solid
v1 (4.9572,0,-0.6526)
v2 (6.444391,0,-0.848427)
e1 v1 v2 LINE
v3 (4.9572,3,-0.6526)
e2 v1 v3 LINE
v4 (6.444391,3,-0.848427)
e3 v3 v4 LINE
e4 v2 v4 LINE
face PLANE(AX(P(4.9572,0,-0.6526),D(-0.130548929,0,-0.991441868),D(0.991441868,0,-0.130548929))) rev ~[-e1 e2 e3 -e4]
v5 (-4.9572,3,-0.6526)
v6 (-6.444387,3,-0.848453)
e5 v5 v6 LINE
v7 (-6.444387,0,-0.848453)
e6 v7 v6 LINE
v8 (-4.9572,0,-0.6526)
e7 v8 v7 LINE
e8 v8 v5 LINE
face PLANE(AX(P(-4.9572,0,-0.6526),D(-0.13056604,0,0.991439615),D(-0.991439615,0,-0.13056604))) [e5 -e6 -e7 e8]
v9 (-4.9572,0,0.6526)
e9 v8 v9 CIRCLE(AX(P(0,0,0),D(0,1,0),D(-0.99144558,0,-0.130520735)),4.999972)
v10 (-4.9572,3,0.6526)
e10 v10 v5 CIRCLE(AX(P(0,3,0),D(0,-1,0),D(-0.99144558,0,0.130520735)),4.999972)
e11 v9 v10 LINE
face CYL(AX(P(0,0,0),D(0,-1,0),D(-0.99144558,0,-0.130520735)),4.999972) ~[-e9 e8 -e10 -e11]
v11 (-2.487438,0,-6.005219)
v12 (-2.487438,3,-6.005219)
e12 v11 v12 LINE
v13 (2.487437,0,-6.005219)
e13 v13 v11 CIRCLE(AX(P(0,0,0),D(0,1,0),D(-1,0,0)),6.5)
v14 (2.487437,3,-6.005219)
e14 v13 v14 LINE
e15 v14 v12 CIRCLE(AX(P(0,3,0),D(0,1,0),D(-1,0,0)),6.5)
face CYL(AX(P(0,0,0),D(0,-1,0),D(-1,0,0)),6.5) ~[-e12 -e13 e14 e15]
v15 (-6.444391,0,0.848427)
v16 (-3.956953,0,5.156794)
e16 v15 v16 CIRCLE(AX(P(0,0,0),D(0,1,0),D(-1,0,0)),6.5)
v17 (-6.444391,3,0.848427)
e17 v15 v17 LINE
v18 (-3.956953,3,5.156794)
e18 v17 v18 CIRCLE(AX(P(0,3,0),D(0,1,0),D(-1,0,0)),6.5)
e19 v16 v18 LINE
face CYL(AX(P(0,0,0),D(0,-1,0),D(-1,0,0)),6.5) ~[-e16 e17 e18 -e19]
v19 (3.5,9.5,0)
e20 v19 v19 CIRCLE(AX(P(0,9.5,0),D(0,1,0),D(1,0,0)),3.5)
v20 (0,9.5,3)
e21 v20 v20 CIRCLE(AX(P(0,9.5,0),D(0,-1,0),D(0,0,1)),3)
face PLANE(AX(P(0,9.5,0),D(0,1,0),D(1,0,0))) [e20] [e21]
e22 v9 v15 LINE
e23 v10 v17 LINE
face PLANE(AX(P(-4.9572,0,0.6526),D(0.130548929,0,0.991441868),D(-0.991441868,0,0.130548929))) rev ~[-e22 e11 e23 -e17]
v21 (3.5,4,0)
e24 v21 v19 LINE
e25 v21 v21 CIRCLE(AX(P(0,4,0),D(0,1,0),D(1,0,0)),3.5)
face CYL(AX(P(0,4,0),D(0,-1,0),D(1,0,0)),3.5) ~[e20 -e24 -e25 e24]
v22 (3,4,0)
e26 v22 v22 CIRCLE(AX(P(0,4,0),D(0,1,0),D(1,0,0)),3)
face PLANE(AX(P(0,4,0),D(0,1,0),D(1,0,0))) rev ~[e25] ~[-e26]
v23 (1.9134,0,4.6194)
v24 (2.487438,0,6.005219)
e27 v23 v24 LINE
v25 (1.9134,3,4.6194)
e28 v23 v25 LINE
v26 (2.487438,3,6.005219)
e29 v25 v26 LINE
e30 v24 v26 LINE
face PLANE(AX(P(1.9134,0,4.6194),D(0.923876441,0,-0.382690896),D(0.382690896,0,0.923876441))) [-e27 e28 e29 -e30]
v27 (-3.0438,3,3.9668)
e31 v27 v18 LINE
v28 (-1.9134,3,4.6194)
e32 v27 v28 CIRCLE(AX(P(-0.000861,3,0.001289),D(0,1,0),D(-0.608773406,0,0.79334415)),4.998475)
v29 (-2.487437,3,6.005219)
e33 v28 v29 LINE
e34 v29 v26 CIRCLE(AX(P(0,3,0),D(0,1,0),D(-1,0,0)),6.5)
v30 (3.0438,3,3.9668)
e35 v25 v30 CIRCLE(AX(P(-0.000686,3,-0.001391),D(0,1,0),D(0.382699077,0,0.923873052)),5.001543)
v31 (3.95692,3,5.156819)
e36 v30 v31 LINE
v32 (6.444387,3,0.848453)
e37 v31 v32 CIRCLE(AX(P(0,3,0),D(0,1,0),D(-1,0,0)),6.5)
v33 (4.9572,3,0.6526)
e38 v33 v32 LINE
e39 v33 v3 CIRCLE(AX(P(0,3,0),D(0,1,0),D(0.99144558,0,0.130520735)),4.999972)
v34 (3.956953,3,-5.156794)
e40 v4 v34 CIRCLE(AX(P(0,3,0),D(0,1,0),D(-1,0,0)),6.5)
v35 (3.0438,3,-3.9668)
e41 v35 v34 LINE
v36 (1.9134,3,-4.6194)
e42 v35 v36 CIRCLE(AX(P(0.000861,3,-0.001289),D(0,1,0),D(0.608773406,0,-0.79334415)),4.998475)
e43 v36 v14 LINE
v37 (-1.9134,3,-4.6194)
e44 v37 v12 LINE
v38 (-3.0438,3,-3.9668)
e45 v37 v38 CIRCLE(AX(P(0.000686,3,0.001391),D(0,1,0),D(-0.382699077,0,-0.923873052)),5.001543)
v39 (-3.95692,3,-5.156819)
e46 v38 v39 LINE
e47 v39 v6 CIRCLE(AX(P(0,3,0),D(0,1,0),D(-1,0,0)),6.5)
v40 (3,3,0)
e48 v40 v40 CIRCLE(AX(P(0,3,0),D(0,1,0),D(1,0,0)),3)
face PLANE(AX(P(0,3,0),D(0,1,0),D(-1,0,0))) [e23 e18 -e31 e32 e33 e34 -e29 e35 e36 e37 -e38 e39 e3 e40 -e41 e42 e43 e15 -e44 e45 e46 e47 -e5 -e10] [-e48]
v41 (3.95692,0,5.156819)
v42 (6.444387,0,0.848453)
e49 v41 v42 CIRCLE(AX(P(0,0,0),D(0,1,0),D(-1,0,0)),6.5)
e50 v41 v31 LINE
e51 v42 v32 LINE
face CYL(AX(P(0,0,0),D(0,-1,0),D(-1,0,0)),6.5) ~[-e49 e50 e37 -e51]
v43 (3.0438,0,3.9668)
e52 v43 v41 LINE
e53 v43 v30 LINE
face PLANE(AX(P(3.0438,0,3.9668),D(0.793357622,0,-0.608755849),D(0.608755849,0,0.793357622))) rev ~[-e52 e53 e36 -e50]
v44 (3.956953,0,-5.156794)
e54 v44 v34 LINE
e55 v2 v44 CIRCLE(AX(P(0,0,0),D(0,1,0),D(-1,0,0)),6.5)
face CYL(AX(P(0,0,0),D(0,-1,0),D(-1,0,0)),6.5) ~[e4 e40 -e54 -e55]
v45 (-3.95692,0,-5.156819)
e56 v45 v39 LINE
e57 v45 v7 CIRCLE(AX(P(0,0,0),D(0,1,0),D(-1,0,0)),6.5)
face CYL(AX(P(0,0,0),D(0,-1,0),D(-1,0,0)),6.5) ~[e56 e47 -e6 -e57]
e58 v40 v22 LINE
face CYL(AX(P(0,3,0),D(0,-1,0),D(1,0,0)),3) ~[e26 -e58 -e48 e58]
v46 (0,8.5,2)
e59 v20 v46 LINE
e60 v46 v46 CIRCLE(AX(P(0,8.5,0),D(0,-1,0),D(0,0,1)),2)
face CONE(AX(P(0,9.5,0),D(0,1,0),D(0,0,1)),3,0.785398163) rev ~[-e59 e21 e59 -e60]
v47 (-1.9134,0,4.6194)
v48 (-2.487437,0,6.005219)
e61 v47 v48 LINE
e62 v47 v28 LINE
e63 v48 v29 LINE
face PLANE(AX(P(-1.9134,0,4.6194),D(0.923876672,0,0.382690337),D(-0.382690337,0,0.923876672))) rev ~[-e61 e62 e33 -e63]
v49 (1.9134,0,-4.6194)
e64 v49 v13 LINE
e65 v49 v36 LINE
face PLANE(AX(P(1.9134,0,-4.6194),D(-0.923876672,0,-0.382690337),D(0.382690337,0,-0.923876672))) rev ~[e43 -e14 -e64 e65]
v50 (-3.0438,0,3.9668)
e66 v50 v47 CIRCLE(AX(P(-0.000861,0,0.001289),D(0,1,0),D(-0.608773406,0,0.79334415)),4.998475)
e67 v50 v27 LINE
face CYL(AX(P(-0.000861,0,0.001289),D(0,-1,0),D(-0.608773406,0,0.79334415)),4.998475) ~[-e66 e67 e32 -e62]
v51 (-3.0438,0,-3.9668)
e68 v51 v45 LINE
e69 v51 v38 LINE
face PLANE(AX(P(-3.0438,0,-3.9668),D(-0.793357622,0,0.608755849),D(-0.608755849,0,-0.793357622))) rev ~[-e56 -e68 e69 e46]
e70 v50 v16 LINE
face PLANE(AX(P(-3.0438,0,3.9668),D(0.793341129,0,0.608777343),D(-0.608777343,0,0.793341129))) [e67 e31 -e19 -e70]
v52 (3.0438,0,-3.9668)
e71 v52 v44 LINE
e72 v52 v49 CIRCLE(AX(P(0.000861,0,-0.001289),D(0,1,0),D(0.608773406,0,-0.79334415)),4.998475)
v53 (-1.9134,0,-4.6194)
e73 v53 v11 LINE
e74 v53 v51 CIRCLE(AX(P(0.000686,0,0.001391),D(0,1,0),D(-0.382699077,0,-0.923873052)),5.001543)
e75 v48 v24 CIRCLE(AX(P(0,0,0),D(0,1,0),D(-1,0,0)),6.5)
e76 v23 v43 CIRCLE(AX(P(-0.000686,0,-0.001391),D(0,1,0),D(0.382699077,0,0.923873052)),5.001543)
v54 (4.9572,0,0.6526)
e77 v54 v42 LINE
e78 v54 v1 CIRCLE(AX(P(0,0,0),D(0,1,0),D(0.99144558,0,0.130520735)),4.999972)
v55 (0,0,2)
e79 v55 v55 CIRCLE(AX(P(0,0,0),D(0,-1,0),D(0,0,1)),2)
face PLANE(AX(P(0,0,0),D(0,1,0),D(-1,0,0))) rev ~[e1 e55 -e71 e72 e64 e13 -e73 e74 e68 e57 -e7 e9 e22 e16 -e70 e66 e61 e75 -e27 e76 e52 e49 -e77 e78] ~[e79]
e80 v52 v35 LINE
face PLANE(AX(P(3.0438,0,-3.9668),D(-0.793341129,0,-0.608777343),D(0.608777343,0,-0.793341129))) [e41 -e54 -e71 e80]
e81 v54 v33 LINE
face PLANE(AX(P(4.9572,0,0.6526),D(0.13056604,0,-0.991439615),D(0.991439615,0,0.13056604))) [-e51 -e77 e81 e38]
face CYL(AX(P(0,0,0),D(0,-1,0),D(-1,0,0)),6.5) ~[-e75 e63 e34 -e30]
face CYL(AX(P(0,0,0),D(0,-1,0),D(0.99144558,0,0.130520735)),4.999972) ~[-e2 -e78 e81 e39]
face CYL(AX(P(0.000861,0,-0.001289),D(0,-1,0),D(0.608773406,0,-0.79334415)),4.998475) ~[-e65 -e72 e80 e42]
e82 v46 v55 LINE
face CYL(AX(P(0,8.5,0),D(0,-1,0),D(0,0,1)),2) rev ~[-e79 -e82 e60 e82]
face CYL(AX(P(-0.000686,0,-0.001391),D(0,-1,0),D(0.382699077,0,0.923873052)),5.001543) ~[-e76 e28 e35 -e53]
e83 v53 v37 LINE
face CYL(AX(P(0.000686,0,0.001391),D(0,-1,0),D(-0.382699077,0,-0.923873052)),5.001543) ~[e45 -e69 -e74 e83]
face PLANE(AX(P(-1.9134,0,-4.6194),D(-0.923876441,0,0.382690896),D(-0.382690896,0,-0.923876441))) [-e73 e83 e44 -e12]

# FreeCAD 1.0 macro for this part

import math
import FreeCAD as App
import Part
import Sketcher
Q = App.Units.Quantity

doc = App.newDocument("Part")
body = doc.addObject("PartDesign::Body", "Body")

sketch1 = body.newObject("Sketcher::SketchObject", "Sketch")
sketch1.AttachmentSupport = (doc.getObject("XZ_Plane"), [""])
sketch1.MapMode = "FlatFace"
sketch1.addGeometry(Part.LineSegment(App.Vector(-4.9572, 0.6526, 0), App.Vector(-6.444391, 0.848427, 0)), False)
sketch1.addGeometry(Part.ArcOfCircle(Part.Circle(App.Vector(0, 0, 0), App.Vector(0, 0, 1), 6.5), math.radians(127.500037), math.radians(172.499939)), False)
sketch1.addGeometry(Part.LineSegment(App.Vector(-3.956953, 5.156794, 0), App.Vector(-3.0438, 3.9668, 0)), False)
sketch1.addGeometry(Part.ArcOfCircle(Part.Circle(App.Vector(-0.000861, 0.001289, 0), App.Vector(0, 0, 1), 4.998475), math.radians(112.496341), math.radians(127.500865)), False)
sketch1.addGeometry(Part.LineSegment(App.Vector(-1.9134, 4.6194, 0), App.Vector(-2.487437, 6.005219, 0)), False)
sketch1.addGeometry(Part.ArcOfCircle(Part.Circle(App.Vector(0, 0, 0), App.Vector(0, 0, 1), 6.5), math.radians(67.500041), math.radians(112.499951)), False)
sketch1.addGeometry(Part.LineSegment(App.Vector(2.487438, 6.005219, 0), App.Vector(1.9134, 4.6194, 0)), False)
sketch1.addGeometry(Part.ArcOfCircle(Part.Circle(App.Vector(-0.000686, -0.001391, 0), App.Vector(0, 0, 1), 5.001543), math.radians(52.503764), math.radians(67.49903)), False)
sketch1.addGeometry(Part.LineSegment(App.Vector(3.0438, 3.9668, 0), App.Vector(3.95692, 5.156819, 0)), False)
sketch1.addGeometry(Part.ArcOfCircle(Part.Circle(App.Vector(0, 0, 0), App.Vector(0, 0, 1), 6.5), math.radians(7.500289), math.radians(52.500322)), False)
sketch1.addGeometry(Part.LineSegment(App.Vector(6.444387, 0.848453, 0), App.Vector(4.9572, 0.6526, 0)), False)
sketch1.addGeometry(Part.ArcOfCircle(Part.Circle(App.Vector(0, 0, 0), App.Vector(0, 0, 1), 4.999972), math.radians(-7.499685), math.radians(7.499685)), False)
sketch1.addGeometry(Part.LineSegment(App.Vector(4.9572, -0.6526, 0), App.Vector(6.444391, -0.848427, 0)), False)
sketch1.addGeometry(Part.ArcOfCircle(Part.Circle(App.Vector(0, 0, 0), App.Vector(0, 0, 1), 6.5), math.radians(-52.499963), math.radians(-7.500061)), False)
sketch1.addGeometry(Part.LineSegment(App.Vector(3.956953, -5.156794, 0), App.Vector(3.0438, -3.9668, 0)), False)
sketch1.addGeometry(Part.ArcOfCircle(Part.Circle(App.Vector(0.000861, -0.001289, 0), App.Vector(0, 0, 1), 4.998475), math.radians(-67.503659), math.radians(-52.499135)), False)
sketch1.addGeometry(Part.LineSegment(App.Vector(1.9134, -4.6194, 0), App.Vector(2.487437, -6.005219, 0)), False)
sketch1.addGeometry(Part.ArcOfCircle(Part.Circle(App.Vector(0, 0, 0), App.Vector(0, 0, 1), 6.5), math.radians(-112.499959), math.radians(-67.500049)), False)
sketch1.addGeometry(Part.LineSegment(App.Vector(-2.487438, -6.005219, 0), App.Vector(-1.9134, -4.6194, 0)), False)
sketch1.addGeometry(Part.ArcOfCircle(Part.Circle(App.Vector(0.000686, 0.001391, 0), App.Vector(0, 0, 1), 5.001543), math.radians(-127.496236), math.radians(-112.50097)), False)
sketch1.addGeometry(Part.LineSegment(App.Vector(-3.0438, -3.9668, 0), App.Vector(-3.95692, -5.156819, 0)), False)
sketch1.addGeometry(Part.ArcOfCircle(Part.Circle(App.Vector(0, 0, 0), App.Vector(0, 0, 1), 6.5), math.radians(-172.499711), math.radians(-127.499678)), False)
sketch1.addGeometry(Part.LineSegment(App.Vector(-6.444387, -0.848453, 0), App.Vector(-4.9572, -0.6526, 0)), False)
sketch1.addGeometry(Part.ArcOfCircle(Part.Circle(App.Vector(0, 0, 0), App.Vector(0, 0, 1), 4.999972), math.radians(172.500315), math.radians(187.499685)), False)
sketch1.addConstraint(Sketcher.Constraint("Coincident", 0, 2, 1, 2))
sketch1.addConstraint(Sketcher.Constraint("Coincident", 1, 1, 2, 1))
sketch1.addConstraint(Sketcher.Constraint("Coincident", 2, 2, 3, 2))
sketch1.addConstraint(Sketcher.Constraint("Coincident", 3, 1, 4, 1))
sketch1.addConstraint(Sketcher.Constraint("Coincident", 4, 2, 5, 2))
sketch1.addConstraint(Sketcher.Constraint("Coincident", 5, 1, 6, 1))
sketch1.addConstraint(Sketcher.Constraint("Coincident", 6, 2, 7, 2))
sketch1.addConstraint(Sketcher.Constraint("Coincident", 7, 1, 8, 1))
sketch1.addConstraint(Sketcher.Constraint("Coincident", 8, 2, 9, 2))
sketch1.addConstraint(Sketcher.Constraint("Coincident", 9, 1, 10, 1))
sketch1.addConstraint(Sketcher.Constraint("Coincident", 10, 2, 11, 2))
sketch1.addConstraint(Sketcher.Constraint("Coincident", 11, 1, 12, 1))
sketch1.addConstraint(Sketcher.Constraint("Coincident", 12, 2, 13, 2))
sketch1.addConstraint(Sketcher.Constraint("Coincident", 13, 1, 14, 1))
sketch1.addConstraint(Sketcher.Constraint("Coincident", 14, 2, 15, 2))
sketch1.addConstraint(Sketcher.Constraint("Coincident", 15, 1, 16, 1))
sketch1.addConstraint(Sketcher.Constraint("Coincident", 16, 2, 17, 2))
sketch1.addConstraint(Sketcher.Constraint("Coincident", 17, 1, 18, 1))
sketch1.addConstraint(Sketcher.Constraint("Coincident", 18, 2, 19, 2))
sketch1.addConstraint(Sketcher.Constraint("Coincident", 19, 1, 20, 1))
sketch1.addConstraint(Sketcher.Constraint("Coincident", 20, 2, 21, 2))
sketch1.addConstraint(Sketcher.Constraint("Coincident", 21, 1, 22, 1))
sketch1.addConstraint(Sketcher.Constraint("Coincident", 22, 2, 23, 2))
sketch1.addConstraint(Sketcher.Constraint("Coincident", 23, 1, 0, 1))
sketch1.addConstraint(Sketcher.Constraint("Coincident", 1, 3, -1, 1))
sketch1.addConstraint(Sketcher.Constraint("Coincident", 5, 3, -1, 1))
sketch1.addConstraint(Sketcher.Constraint("Coincident", 9, 3, -1, 1))
sketch1.addConstraint(Sketcher.Constraint("Coincident", 11, 3, -1, 1))
sketch1.addConstraint(Sketcher.Constraint("Coincident", 13, 3, -1, 1))
sketch1.addConstraint(Sketcher.Constraint("Coincident", 17, 3, -1, 1))
sketch1.addConstraint(Sketcher.Constraint("Coincident", 21, 3, -1, 1))
sketch1.addConstraint(Sketcher.Constraint("Coincident", 23, 3, -1, 1))
sketch1.addConstraint(Sketcher.Constraint("Equal", 1, 5))
sketch1.addConstraint(Sketcher.Constraint("Equal", 5, 9))
sketch1.addConstraint(Sketcher.Constraint("Equal", 9, 13))
sketch1.addConstraint(Sketcher.Constraint("Equal", 3, 15))
sketch1.addConstraint(Sketcher.Constraint("Equal", 13, 17))
sketch1.addConstraint(Sketcher.Constraint("Equal", 7, 19))
sketch1.addConstraint(Sketcher.Constraint("Equal", 17, 21))
sketch1.addConstraint(Sketcher.Constraint("Equal", 11, 23))
sketch1.addConstraint(Sketcher.Constraint("Symmetric", 3, 3, 15, 3, -1, 1))
sketch1.addConstraint(Sketcher.Constraint("Symmetric", 7, 3, 19, 3, -1, 1))
sketch1.addConstraint(Sketcher.Constraint("Symmetric", 7, 3, 15, 3, -2))
sketch1.addConstraint(Sketcher.Constraint("Symmetric", 3, 1, 6, 2, -2))
sketch1.addConstraint(Sketcher.Constraint("Symmetric", 2, 2, 7, 1, -2))
sketch1.addConstraint(Sketcher.Constraint("Parallel", 0, 12))
sketch1.addConstraint(Sketcher.Constraint("Parallel", 2, 14))
sketch1.addConstraint(Sketcher.Constraint("Parallel", 4, 16))
sketch1.addConstraint(Sketcher.Constraint("Parallel", 6, 18))
sketch1.addConstraint(Sketcher.Constraint("Parallel", 8, 20))
sketch1.addConstraint(Sketcher.Constraint("Parallel", 10, 22))
sketch1.addConstraint(Sketcher.Constraint("Horizontal", 4, 2, 5, 1))
sketch1.addConstraint(Sketcher.Constraint("Horizontal", 1, 1, 8, 2))
sketch1.addConstraint(Sketcher.Constraint("Horizontal", 0, 2, 9, 1))
sketch1.addConstraint(Sketcher.Constraint("Horizontal", 16, 2, 17, 1))
sketch1.addConstraint(Sketcher.Constraint("Horizontal", 14, 2, 19, 1))
sketch1.addConstraint(Sketcher.Constraint("Horizontal", 12, 2, 21, 1))
sketch1.addConstraint(Sketcher.Constraint("Horizontal", 11, 1, 22, 2))
sketch1.addConstraint(Sketcher.Constraint("Vertical", 10, 2, 11, 1))
sketch1.addConstraint(Sketcher.Constraint("Vertical", 8, 2, 13, 1))
sketch1.addConstraint(Sketcher.Constraint("Vertical", 6, 2, 15, 1))
sketch1.addConstraint(Sketcher.Constraint("Equal", 0, 2))
sketch1.addConstraint(Sketcher.Constraint("Radius", 11, Q("5 mm")))
sketch1.addConstraint(Sketcher.Constraint("Radius", 1, Q("6.5 mm")))
sketch1.addConstraint(Sketcher.Constraint("Angle", 2, Q("-52.4989 deg")))
sketch1.addConstraint(Sketcher.Constraint("Angle", 4, Q("112.5004 deg")))
sketch1.addConstraint(Sketcher.Constraint("Radius", 3, Q("4.9985 mm")))
sketch1.addConstraint(Sketcher.Constraint("DistanceX", 1, 1, -1, 1, Q("3.957 mm")))
sketch1.addConstraint(Sketcher.Constraint("DistanceY", 3, 3, 3, 1, Q("4.618 mm")))
sketch1.addConstraint(Sketcher.Constraint("DistanceX", 6, 2, 9, 1, Q("4.531 mm")))
sketch1.addConstraint(Sketcher.Constraint("DistanceY", 15, 3, 10, 2, Q("0.654 mm")))
pad1 = body.newObject("PartDesign::Pad", "Pad")
pad1.Profile = sketch1
pad1.Length = 3
pad1.Reversed = True

sketch2 = body.newObject("Sketcher::SketchObject", "Sketch001")
sketch2.AttachmentSupport = (doc.getObject("XZ_Plane"), [""])
sketch2.MapMode = "FlatFace"
sketch2.AttachmentOffset = App.Placement(App.Vector(0, 0, -3), App.Rotation())
sketch2.addGeometry(Part.Circle(App.Vector(0, 0, 0), App.Vector(0, 0, 1), 3), False)
sketch2.addConstraint(Sketcher.Constraint("Coincident", 0, 3, -1, 1))
sketch2.addConstraint(Sketcher.Constraint("Diameter", 0, Q("6 mm")))
pad2 = body.newObject("PartDesign::Pad", "Pad001")
pad2.Profile = sketch2
pad2.Length = 1
pad2.Reversed = True

sketch3 = body.newObject("Sketcher::SketchObject", "Sketch002")
sketch3.AttachmentSupport = (doc.getObject("XZ_Plane"), [""])
sketch3.MapMode = "FlatFace"
sketch3.AttachmentOffset = App.Placement(App.Vector(0, 0, -4), App.Rotation())
sketch3.addGeometry(Part.Circle(App.Vector(0, 0, 0), App.Vector(0, 0, 1), 3.5), False)
sketch3.addConstraint(Sketcher.Constraint("Coincident", 0, 3, -1, 1))
sketch3.addConstraint(Sketcher.Constraint("Diameter", 0, Q("7 mm")))
pad3 = body.newObject("PartDesign::Pad", "Pad002")
pad3.Profile = sketch3
pad3.Length = 5.5
pad3.Reversed = True

sketch4 = body.newObject("Sketcher::SketchObject", "Sketch003")
sketch4.AttachmentSupport = (doc.getObject("XZ_Plane"), [""])
sketch4.MapMode = "FlatFace"
sketch4.AttachmentOffset = App.Placement(App.Vector(0, 0, -9.5), App.Rotation())
sketch4.addGeometry(Part.Circle(App.Vector(0, 0, 0), App.Vector(0, 0, 1), 2), False)
sketch4.addConstraint(Sketcher.Constraint("Coincident", 0, 3, -1, 1))
sketch4.addConstraint(Sketcher.Constraint("Diameter", 0, Q("4 mm")))
doc.recompute()
hole = body.newObject("PartDesign::Hole", "Hole")
hole.Profile = sketch4
hole.ThreadType = "None"
hole.Diameter = 4
hole.DepthType = "ThroughAll"
hole.HoleCutType = "Countersink"
hole.HoleCutDiameter = 6
hole.HoleCutCountersinkAngle = 90
hole.Reversed = True

doc.recompute()
